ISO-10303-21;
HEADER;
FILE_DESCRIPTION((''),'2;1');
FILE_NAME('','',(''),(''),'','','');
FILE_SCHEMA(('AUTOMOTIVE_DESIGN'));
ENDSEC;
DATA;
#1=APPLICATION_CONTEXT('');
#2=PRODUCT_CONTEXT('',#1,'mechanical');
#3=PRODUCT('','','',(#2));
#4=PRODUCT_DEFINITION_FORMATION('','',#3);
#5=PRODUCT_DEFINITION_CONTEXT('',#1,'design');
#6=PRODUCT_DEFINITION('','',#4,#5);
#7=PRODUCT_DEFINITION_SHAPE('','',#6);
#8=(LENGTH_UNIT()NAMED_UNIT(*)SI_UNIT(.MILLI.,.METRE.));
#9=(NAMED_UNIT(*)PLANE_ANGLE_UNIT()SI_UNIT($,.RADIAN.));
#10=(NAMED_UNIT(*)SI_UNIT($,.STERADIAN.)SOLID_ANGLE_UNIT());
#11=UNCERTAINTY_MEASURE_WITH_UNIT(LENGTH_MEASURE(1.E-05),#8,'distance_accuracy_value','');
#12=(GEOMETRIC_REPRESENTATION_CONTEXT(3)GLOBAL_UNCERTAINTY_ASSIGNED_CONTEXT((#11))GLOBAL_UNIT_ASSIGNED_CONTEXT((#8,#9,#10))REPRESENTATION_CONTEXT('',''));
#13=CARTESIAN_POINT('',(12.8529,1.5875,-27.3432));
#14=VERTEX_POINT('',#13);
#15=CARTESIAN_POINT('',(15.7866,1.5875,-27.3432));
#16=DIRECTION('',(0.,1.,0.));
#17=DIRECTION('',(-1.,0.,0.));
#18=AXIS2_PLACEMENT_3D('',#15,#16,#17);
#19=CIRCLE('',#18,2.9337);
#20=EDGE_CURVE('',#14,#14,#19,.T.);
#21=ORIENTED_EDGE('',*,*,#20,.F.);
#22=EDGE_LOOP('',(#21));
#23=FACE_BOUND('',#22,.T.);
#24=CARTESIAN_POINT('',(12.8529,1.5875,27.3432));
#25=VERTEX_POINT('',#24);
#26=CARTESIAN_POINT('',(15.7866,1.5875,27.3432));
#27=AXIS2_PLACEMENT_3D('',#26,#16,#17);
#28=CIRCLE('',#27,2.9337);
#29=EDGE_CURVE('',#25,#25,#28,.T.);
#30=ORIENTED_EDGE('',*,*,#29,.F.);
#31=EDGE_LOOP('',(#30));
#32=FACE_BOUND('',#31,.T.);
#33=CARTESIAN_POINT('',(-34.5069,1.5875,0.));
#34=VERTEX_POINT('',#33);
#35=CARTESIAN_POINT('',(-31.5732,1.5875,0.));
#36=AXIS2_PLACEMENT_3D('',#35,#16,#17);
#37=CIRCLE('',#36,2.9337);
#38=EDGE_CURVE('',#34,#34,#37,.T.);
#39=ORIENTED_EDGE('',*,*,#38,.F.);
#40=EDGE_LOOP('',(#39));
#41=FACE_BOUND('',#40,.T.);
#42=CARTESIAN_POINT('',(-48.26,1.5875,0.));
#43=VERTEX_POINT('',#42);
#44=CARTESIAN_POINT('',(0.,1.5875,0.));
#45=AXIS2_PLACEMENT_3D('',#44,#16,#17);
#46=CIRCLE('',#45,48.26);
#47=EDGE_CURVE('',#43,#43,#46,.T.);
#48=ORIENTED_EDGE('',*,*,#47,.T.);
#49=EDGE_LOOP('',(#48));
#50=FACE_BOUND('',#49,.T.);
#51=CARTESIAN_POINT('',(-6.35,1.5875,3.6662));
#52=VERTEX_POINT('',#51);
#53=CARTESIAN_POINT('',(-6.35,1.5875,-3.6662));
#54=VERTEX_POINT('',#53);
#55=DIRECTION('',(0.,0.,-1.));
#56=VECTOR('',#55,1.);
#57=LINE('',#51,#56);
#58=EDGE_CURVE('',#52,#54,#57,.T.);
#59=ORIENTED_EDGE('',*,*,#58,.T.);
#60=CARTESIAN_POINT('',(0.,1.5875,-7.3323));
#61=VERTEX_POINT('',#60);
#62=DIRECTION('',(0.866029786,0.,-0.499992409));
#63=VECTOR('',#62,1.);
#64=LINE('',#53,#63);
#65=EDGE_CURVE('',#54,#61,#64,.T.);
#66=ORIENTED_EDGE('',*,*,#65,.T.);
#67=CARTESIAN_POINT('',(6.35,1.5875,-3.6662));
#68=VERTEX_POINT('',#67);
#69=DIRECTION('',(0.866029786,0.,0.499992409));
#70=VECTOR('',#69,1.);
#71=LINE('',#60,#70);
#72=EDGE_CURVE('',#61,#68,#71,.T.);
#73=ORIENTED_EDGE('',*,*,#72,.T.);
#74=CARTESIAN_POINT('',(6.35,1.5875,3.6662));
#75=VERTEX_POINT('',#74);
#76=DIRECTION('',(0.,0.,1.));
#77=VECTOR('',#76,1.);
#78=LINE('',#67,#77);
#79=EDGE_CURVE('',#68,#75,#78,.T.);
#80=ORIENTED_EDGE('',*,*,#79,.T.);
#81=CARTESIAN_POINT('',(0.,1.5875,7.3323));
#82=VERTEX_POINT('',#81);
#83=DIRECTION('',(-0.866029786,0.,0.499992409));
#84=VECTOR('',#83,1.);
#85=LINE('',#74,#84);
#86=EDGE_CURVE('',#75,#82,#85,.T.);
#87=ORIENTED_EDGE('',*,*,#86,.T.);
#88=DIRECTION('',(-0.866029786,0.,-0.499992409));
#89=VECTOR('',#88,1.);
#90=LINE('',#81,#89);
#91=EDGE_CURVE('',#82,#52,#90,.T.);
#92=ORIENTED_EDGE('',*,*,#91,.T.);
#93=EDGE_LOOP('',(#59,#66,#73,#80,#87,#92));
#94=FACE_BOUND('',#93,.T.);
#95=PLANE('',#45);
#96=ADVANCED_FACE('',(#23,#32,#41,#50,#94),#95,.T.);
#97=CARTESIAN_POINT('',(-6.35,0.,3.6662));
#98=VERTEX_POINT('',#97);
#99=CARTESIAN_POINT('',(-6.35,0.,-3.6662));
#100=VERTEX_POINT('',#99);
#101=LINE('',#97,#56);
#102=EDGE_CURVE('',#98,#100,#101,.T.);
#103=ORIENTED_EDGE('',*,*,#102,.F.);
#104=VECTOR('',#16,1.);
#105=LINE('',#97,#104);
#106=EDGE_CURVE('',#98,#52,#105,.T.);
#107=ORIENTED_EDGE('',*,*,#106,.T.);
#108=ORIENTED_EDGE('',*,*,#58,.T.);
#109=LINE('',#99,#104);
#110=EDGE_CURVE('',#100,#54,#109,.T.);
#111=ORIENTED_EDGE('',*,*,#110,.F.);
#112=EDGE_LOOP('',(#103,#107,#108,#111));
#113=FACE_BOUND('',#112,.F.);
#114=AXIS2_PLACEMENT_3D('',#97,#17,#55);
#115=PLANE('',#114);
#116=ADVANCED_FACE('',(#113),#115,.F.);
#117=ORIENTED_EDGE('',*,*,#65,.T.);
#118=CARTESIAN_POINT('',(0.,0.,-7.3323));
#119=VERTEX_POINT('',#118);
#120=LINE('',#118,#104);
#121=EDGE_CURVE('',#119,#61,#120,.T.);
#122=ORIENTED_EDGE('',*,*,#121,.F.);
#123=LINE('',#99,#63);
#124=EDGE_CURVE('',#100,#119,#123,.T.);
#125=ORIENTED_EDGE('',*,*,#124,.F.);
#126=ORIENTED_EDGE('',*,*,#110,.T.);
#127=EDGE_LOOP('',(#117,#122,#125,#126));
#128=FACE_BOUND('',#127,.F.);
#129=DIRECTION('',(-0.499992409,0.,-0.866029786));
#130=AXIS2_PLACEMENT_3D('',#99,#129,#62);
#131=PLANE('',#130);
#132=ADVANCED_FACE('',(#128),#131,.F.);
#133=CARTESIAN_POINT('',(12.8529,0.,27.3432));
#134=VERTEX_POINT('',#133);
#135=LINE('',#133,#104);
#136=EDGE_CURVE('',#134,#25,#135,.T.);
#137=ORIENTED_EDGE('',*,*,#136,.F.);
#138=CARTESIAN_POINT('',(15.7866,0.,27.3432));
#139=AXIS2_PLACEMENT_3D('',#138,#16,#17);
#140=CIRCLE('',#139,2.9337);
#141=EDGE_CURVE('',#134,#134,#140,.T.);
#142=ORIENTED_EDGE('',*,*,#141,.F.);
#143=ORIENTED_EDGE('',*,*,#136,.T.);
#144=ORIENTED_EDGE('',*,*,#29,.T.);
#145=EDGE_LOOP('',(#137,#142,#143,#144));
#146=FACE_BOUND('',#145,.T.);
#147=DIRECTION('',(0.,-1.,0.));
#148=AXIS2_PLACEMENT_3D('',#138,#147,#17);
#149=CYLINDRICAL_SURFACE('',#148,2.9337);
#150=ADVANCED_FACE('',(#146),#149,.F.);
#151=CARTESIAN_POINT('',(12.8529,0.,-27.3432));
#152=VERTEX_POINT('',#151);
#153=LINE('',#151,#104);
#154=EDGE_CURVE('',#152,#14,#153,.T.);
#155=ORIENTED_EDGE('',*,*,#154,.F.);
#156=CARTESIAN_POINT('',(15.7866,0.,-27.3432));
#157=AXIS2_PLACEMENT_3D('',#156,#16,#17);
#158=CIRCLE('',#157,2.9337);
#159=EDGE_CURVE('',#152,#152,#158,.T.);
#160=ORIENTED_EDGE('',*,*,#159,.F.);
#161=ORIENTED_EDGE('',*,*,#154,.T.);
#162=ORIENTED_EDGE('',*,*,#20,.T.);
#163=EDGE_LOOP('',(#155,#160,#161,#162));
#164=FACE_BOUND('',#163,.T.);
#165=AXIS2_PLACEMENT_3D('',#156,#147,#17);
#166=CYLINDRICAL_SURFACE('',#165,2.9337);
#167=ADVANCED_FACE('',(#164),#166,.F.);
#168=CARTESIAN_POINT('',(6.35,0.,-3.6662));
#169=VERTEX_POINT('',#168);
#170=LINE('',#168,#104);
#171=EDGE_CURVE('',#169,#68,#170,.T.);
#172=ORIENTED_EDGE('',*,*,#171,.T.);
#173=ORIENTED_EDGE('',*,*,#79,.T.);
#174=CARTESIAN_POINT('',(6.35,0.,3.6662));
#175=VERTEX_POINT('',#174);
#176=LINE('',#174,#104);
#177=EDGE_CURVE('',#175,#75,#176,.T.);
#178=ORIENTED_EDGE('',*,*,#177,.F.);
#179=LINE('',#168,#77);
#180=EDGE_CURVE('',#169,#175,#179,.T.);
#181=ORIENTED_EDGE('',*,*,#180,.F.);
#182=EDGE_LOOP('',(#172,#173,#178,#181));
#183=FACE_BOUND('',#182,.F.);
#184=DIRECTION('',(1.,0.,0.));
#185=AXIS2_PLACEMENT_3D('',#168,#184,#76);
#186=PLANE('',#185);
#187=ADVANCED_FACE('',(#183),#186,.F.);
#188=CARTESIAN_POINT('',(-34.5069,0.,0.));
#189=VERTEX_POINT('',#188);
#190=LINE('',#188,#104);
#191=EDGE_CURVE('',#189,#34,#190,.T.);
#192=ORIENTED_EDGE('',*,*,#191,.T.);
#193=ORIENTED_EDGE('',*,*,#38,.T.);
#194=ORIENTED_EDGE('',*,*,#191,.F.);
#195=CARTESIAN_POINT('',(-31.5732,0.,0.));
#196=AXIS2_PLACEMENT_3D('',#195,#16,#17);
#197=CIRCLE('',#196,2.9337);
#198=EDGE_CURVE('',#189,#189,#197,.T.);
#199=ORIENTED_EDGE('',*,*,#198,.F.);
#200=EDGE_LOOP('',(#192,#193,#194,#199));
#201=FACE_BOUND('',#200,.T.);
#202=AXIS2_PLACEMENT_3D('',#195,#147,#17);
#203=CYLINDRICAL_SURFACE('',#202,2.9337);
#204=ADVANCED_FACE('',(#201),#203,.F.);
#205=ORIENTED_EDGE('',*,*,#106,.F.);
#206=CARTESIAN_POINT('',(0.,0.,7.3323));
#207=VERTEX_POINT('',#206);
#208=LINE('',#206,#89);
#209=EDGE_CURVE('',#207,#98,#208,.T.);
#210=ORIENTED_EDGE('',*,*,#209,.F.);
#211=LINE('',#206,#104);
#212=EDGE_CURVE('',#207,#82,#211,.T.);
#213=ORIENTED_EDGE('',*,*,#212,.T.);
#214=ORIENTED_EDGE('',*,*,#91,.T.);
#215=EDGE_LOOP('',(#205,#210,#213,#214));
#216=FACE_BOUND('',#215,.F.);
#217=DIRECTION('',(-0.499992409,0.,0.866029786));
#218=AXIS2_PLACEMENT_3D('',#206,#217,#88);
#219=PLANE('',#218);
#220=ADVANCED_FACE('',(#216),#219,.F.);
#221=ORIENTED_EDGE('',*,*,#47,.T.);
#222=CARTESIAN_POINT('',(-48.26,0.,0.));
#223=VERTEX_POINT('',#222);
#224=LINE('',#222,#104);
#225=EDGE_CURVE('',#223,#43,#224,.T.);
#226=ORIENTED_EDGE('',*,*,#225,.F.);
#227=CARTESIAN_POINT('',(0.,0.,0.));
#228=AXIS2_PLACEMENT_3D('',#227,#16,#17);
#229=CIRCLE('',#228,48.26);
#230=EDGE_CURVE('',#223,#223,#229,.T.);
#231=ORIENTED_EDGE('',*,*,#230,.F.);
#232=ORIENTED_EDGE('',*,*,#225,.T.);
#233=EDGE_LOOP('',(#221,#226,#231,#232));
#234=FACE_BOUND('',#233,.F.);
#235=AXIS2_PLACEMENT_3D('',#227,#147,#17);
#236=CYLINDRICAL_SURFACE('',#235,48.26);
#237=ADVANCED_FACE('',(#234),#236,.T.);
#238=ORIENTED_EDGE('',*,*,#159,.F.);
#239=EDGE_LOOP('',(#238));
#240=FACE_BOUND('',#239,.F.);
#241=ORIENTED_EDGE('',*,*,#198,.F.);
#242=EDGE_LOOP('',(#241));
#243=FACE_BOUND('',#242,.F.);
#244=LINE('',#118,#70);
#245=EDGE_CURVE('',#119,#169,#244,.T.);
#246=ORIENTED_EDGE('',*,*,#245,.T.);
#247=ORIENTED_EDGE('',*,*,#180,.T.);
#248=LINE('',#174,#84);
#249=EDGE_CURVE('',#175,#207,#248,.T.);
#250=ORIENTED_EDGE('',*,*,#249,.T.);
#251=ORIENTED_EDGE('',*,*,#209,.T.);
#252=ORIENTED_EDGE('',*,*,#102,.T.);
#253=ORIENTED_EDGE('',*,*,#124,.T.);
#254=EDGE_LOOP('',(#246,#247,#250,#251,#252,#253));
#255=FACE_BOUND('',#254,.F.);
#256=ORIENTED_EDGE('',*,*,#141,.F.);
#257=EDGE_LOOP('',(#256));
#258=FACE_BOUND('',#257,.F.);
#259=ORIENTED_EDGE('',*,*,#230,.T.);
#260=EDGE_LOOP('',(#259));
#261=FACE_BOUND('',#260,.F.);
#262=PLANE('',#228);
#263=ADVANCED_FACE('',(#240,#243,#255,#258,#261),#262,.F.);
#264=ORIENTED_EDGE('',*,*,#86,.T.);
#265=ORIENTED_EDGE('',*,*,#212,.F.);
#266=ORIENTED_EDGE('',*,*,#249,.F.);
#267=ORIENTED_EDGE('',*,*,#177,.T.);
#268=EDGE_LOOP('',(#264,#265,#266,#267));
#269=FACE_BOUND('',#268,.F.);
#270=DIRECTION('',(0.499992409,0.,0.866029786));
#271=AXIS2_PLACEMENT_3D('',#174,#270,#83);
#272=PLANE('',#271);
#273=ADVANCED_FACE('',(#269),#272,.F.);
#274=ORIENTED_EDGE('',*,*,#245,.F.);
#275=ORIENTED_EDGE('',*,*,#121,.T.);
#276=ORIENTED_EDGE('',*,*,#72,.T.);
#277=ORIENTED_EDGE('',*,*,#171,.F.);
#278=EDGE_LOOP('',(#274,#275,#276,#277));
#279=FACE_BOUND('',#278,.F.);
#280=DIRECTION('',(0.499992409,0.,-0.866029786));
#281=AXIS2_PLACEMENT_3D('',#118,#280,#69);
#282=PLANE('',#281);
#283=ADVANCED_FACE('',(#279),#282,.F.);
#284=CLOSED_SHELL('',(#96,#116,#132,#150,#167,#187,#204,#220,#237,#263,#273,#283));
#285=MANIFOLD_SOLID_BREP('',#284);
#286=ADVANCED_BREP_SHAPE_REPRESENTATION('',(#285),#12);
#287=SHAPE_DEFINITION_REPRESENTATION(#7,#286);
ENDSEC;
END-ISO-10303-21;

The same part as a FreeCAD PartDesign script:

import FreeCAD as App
import Part
import Sketcher

V = App.Vector
Q = App.Units.Quantity


def add_polygon(sketch, points):
    """Adds a closed chain of lines whose ends are joined by coincident constraints."""
    first, n = sketch.GeometryCount, len(points)
    for a, b in zip(points, points[1:] + points[:1]):
        sketch.addGeometry(Part.LineSegment(App.Vector(*a, 0), App.Vector(*b, 0)), False)
    for i in range(n):
        sketch.addConstraint(Sketcher.Constraint("Coincident", first + i, 2, first + (i + 1) % n, 1))

doc = App.newDocument("Part")
body = doc.addObject("PartDesign::Body", "Body")

sketch1 = body.newObject("Sketcher::SketchObject", "Sketch")
sketch1.AttachmentSupport = (doc.getObject("XZ_Plane"), [""])
sketch1.MapMode = "FlatFace"
sketch1.addGeometry(Part.Circle(V(0, 0, 0), V(0, 0, 1), 48.3), False)
sketch1.addGeometry(Part.Circle(V(-31.6, 0, 0), V(0, 0, 1), 2.9), False)
add_polygon(sketch1, [(0, -7.3), (6.3, -3.7), (6.3, 3.7), (0, 7.3), (-6.3, 3.7), (-6.3, -3.7)])
sketch1.addGeometry(Part.Circle(V(15.8, 27.3, 0), V(0, 0, 1), 2.9), False)
sketch1.addGeometry(Part.Circle(V(15.8, -27.3, 0), V(0, 0, 1), 2.9), False)
sketch1.addConstraint(Sketcher.Constraint("Vertical", 3))
sketch1.addConstraint(Sketcher.Constraint("Vertical", 6))
sketch1.addConstraint(Sketcher.Constraint("Coincident", 0, 3, -1, 1))
sketch1.addConstraint(Sketcher.Constraint("Equal", 1, 8))
sketch1.addConstraint(Sketcher.Constraint("Equal", 8, 9))
sketch1.addConstraint(Sketcher.Constraint("Symmetric", 2, 2, 5, 2, -1, 1))
sketch1.addConstraint(Sketcher.Constraint("Symmetric", 4, 2, 7, 2, -1, 1))
sketch1.addConstraint(Sketcher.Constraint("Symmetric", 8, 3, 9, 3, -1))
sketch1.addConstraint(Sketcher.Constraint("PointOnObject", 1, 3, -1))
sketch1.addConstraint(Sketcher.Constraint("PointOnObject", 4, 2, -2))
sketch1.addConstraint(Sketcher.Constraint("Parallel", 4, 7))
sketch1.addConstraint(Sketcher.Constraint("Horizontal", 3, 2, 5, 2))
sketch1.addConstraint(Sketcher.Constraint("Diameter", 1, Q("0.231 in")))
sketch1.addConstraint(Sketcher.Constraint("Diameter", 0, Q("3.8 in")))
sketch1.addConstraint(Sketcher.Constraint("DistanceX", -1, 1, 2, 2, Q("0.25 in")))
sketch1.addConstraint(Sketcher.Constraint("Angle", 2, Q("29.9995 deg")))
sketch1.addConstraint(Sketcher.Constraint("DistanceY", 9, 3, 8, 3, Q("2.153 in")))
sketch1.addConstraint(Sketcher.Constraint("DistanceY", 2, 2, 4, 2, Q("0.433 in")))
sketch1.addConstraint(Sketcher.Constraint("DistanceX", 1, 3, -1, 1, 31.5732))
sketch1.addConstraint(Sketcher.Constraint("DistanceX", -1, 1, 8, 3, 15.7866))
pad1 = body.newObject("PartDesign::Pad", "Pad")
pad1.Profile = sketch1
pad1.Length = Q("0.0625 in")
pad1.Reversed = True

doc.recompute()
